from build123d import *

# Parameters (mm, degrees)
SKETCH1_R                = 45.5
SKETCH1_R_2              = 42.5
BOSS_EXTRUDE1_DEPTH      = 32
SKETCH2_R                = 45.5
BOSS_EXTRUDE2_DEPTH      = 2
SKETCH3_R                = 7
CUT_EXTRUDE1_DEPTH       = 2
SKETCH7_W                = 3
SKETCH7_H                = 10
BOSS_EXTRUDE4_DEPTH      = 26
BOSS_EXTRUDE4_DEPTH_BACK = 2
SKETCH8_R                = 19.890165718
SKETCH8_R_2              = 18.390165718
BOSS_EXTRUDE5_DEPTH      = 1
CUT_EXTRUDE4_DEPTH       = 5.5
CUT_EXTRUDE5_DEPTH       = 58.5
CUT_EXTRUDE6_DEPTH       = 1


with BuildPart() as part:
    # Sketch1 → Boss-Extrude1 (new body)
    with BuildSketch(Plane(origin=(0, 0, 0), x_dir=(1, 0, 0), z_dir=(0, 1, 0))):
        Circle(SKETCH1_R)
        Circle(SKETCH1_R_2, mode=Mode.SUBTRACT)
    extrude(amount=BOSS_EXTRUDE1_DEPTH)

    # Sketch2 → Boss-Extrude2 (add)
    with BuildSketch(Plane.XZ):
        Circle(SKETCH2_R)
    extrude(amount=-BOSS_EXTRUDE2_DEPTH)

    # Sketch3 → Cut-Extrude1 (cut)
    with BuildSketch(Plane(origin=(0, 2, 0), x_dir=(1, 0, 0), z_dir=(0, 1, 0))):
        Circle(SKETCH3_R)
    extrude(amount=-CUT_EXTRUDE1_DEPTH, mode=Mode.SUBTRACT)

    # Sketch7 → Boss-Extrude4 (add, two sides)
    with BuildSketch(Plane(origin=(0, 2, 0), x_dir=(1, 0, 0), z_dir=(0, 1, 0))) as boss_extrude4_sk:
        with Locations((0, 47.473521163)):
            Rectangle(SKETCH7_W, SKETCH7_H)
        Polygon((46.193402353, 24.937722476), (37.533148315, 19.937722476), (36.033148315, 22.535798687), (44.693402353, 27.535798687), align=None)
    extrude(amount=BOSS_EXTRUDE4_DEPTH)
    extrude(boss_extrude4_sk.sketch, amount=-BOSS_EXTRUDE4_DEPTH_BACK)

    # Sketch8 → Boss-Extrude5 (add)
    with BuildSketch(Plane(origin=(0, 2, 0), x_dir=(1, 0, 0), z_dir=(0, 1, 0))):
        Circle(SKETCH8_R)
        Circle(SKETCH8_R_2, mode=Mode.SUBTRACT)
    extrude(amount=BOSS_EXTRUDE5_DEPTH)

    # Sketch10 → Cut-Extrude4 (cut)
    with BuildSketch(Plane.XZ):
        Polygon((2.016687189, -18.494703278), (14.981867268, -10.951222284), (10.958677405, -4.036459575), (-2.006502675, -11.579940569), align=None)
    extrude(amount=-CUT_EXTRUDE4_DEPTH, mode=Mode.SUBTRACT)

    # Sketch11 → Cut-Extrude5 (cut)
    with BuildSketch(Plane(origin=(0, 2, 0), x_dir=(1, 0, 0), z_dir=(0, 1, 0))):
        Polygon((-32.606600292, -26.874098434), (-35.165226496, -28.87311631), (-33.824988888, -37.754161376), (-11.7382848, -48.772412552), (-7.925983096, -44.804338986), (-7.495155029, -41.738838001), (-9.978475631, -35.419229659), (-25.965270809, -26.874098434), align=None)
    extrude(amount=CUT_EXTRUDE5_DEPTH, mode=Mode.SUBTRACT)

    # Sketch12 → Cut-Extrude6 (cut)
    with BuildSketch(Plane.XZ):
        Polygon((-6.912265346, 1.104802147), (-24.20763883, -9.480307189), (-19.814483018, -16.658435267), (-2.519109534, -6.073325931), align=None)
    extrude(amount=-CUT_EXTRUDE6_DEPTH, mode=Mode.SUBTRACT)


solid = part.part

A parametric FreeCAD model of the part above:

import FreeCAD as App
import Part
import Sketcher
from FreeCAD import Vector
Q = App.Units.Quantity

doc = App.newDocument("Part")
body = doc.addObject("PartDesign::Body", "Body")

sketch1 = body.newObject("Sketcher::SketchObject", "Sketch")
sketch1.AttachmentSupport = (doc.getObject("XZ_Plane"), [""])
sketch1.MapMode = "FlatFace"
sketch1.addGeometry([
    Part.Circle(Vector(0, 0, 0), Vector(0, 0, 1), 46),
    Part.Circle(Vector(0, 0, 0), Vector(0, 0, 1), 42),
], False)
sketch1.addConstraint([
    Sketcher.Constraint("Coincident", 0, 3, -1, 1),
    Sketcher.Constraint("Coincident", 1, 3, -1, 1),
    Sketcher.Constraint("Diameter", 0, Q("91 mm")),
    Sketcher.Constraint("Diameter", 1, Q("85 mm")),
])
pad1 = body.newObject("PartDesign::Pad", "Pad")
pad1.Profile = sketch1
pad1.Length = 32
pad1.Reversed = True

sketch2 = body.newObject("Sketcher::SketchObject", "Sketch001")
sketch2.AttachmentSupport = (doc.getObject("XZ_Plane"), [""])
sketch2.MapMode = "FlatFace"
sketch2.addGeometry(Part.Circle(Vector(0, 0, 0), Vector(0, 0, 1), 46), False)
sketch2.addConstraint([
    Sketcher.Constraint("Coincident", 0, 3, -1, 1),
    Sketcher.Constraint("Diameter", 0, Q("91 mm")),
])
pad2 = body.newObject("PartDesign::Pad", "Pad001")
pad2.Profile = sketch2
pad2.Length = 2
pad2.Reversed = True

sketch3 = body.newObject("Sketcher::SketchObject", "Sketch002")
sketch3.AttachmentSupport = (doc.getObject("XZ_Plane"), [""])
sketch3.MapMode = "FlatFace"
sketch3.AttachmentOffset = App.Placement(Vector(0, 0, -2), App.Rotation())
sketch3.addGeometry(Part.Circle(Vector(0, 0, 0), Vector(0, 0, 1), 7), False)
sketch3.addConstraint([
    Sketcher.Constraint("Coincident", 0, 3, -1, 1),
    Sketcher.Constraint("Diameter", 0, Q("14 mm")),
])
pocket1 = body.newObject("PartDesign::Pocket", "Pocket")
pocket1.Profile = sketch3
pocket1.Length = 2
pocket1.Reversed = True

sketch4 = body.newObject("Sketcher::SketchObject", "Sketch003")
sketch4.AttachmentSupport = (doc.getObject("XZ_Plane"), [""])
sketch4.MapMode = "FlatFace"
sketch4.AttachmentOffset = App.Placement(Vector(0, 0, -2), App.Rotation())
sketch4.addGeometry([
    Part.LineSegment(Vector(-1.5, -52.5, 0), Vector(-1.5, -42.5, 0)),
    Part.LineSegment(Vector(-1.5, -42.5, 0), Vector(1.5, -42.5, 0)),
    Part.LineSegment(Vector(1.5, -42.5, 0), Vector(1.5, -52.5, 0)),
    Part.LineSegment(Vector(1.5, -52.5, 0), Vector(-1.5, -52.5, 0)),
    Part.LineSegment(Vector(37.5, -19.9, 0), Vector(46.2, -24.9, 0)),
    Part.LineSegment(Vector(46.2, -24.9, 0), Vector(44.7, -27.5, 0)),
    Part.LineSegment(Vector(44.7, -27.5, 0), Vector(36, -22.5, 0)),
    Part.LineSegment(Vector(36, -22.5, 0), Vector(37.5, -19.9, 0)),
], False)
sketch4.addConstraint([
    Sketcher.Constraint("Coincident", 0, 2, 1, 1),
    Sketcher.Constraint("Coincident", 1, 2, 2, 1),
    Sketcher.Constraint("Coincident", 2, 2, 3, 1),
    Sketcher.Constraint("Coincident", 3, 2, 0, 1),
    Sketcher.Constraint("Coincident", 4, 2, 5, 1),
    Sketcher.Constraint("Coincident", 5, 2, 6, 1),
    Sketcher.Constraint("Coincident", 6, 2, 7, 1),
    Sketcher.Constraint("Coincident", 7, 2, 4, 1),
    Sketcher.Constraint("Vertical", 0),
    Sketcher.Constraint("Horizontal", 1),
    Sketcher.Constraint("Vertical", 2),
    Sketcher.Constraint("Horizontal", 3),
    Sketcher.Constraint("Perpendicular", 4, 5),
    Sketcher.Constraint("Perpendicular", 5, 6),
    Sketcher.Constraint("Perpendicular", 6, 7),
    Sketcher.Constraint("DistanceX", 1, 1, 1, 2, Q("3 mm")),
    Sketcher.Constraint("DistanceY", 0, 1, 0, 2, Q("10 mm")),
    Sketcher.Constraint("Angle", 4, Q("-30 deg")),
    Sketcher.Constraint("Distance", 4, Q("10 mm")),
    Sketcher.Constraint("Distance", 5, Q("3 mm")),
    Sketcher.Constraint("DistanceX", 0, 2, -1, 1, Q("1.5 mm")),
    Sketcher.Constraint("DistanceY", 5, 2, -1, 1, Q("27.535799 mm")),
    Sketcher.Constraint("DistanceY", 1, 2, 4, 2, Q("17.535799 mm")),
    Sketcher.Constraint("DistanceX", -1, 1, 6, 2, Q("36.033148 mm")),
])
pad3 = body.newObject("PartDesign::Pad", "Pad002")
pad3.Profile = sketch4
pad3.Type = "TwoLengths"
pad3.Length = 26
pad3.Length2 = 2
pad3.Reversed = True

sketch5 = body.newObject("Sketcher::SketchObject", "Sketch004")
sketch5.AttachmentSupport = (doc.getObject("XZ_Plane"), [""])
sketch5.MapMode = "FlatFace"
sketch5.AttachmentOffset = App.Placement(Vector(0, 0, -2), App.Rotation())
sketch5.addGeometry([
    Part.Circle(Vector(0, 0, 0), Vector(0, 0, 1), 20),
    Part.Circle(Vector(0, 0, 0), Vector(0, 0, 1), 18),
], False)
sketch5.addConstraint([
    Sketcher.Constraint("Coincident", 0, 3, -1, 1),
    Sketcher.Constraint("Coincident", 1, 3, -1, 1),
    Sketcher.Constraint("Diameter", 0, Q("39.780331 mm")),
    Sketcher.Constraint("Diameter", 1, Q("36.780331 mm")),
])
pad4 = body.newObject("PartDesign::Pad", "Pad003")
pad4.Profile = sketch5
pad4.Length = 1
pad4.Reversed = True

sketch6 = body.newObject("Sketcher::SketchObject", "Sketch005")
sketch6.AttachmentSupport = (doc.getObject("XZ_Plane"), [""])
sketch6.MapMode = "FlatFace"
sketch6.addGeometry([
    Part.LineSegment(Vector(2, -18, 0), Vector(15, -11, 0)),
    Part.LineSegment(Vector(15, -11, 0), Vector(11, -4, 0)),
    Part.LineSegment(Vector(11, -4, 0), Vector(-2, -12, 0)),
    Part.LineSegment(Vector(-2, -12, 0), Vector(2, -18, 0)),
], False)
sketch6.addConstraint([
    Sketcher.Constraint("Coincident", 0, 2, 1, 1),
    Sketcher.Constraint("Coincident", 1, 2, 2, 1),
    Sketcher.Constraint("Coincident", 2, 2, 3, 1),
    Sketcher.Constraint("Coincident", 3, 2, 0, 1),
    Sketcher.Constraint("Perpendicular", 0, 1),
    Sketcher.Constraint("Perpendicular", 1, 2),
    Sketcher.Constraint("Perpendicular", 2, 3),
    Sketcher.Constraint("Distance", 0, Q("15 mm")),
    Sketcher.Constraint("Distance", 1, Q("8 mm")),
    Sketcher.Constraint("DistanceY", 1, 2, -1, 1, Q("4.03646 mm")),
    Sketcher.Constraint("DistanceY", 2, 2, -1, 1, Q("11.579941 mm")),
    Sketcher.Constraint("DistanceX", -1, 1, 0, 2, Q("14.981867 mm")),
])
pocket2 = body.newObject("PartDesign::Pocket", "Pocket001")
pocket2.Profile = sketch6
pocket2.Length = 5.5

sketch7 = body.newObject("Sketcher::SketchObject", "Sketch006")
sketch7.AttachmentSupport = (doc.getObject("XZ_Plane"), [""])
sketch7.MapMode = "FlatFace"
sketch7.AttachmentOffset = App.Placement(Vector(0, 0, -2), App.Rotation())
sketch7.addGeometry([
    Part.LineSegment(Vector(-32.6, 26.9, 0), Vector(-35.2, 28.9, 0)),
    Part.LineSegment(Vector(-35.2, 28.9, 0), Vector(-33.8, 37.8, 0)),
    Part.LineSegment(Vector(-33.8, 37.8, 0), Vector(-11.7, 48.8, 0)),
    Part.LineSegment(Vector(-11.7, 48.8, 0), Vector(-7.9, 44.8, 0)),
    Part.LineSegment(Vector(-7.9, 44.8, 0), Vector(-7.5, 41.7, 0)),
    Part.LineSegment(Vector(-7.5, 41.7, 0), Vector(-10, 35.4, 0)),
    Part.LineSegment(Vector(-10, 35.4, 0), Vector(-26, 26.9, 0)),
    Part.LineSegment(Vector(-26, 26.9, 0), Vector(-32.6, 26.9, 0)),
], False)
sketch7.addConstraint([
    Sketcher.Constraint("Coincident", 0, 2, 1, 1),
    Sketcher.Constraint("Coincident", 1, 2, 2, 1),
    Sketcher.Constraint("Coincident", 2, 2, 3, 1),
    Sketcher.Constraint("Coincident", 3, 2, 4, 1),
    Sketcher.Constraint("Coincident", 4, 2, 5, 1),
    Sketcher.Constraint("Coincident", 5, 2, 6, 1),
    Sketcher.Constraint("Coincident", 6, 2, 7, 1),
    Sketcher.Constraint("Coincident", 7, 2, 0, 1),
    Sketcher.Constraint("Horizontal", 7),
    Sketcher.Constraint("Angle", 0, Q("142 deg")),
    Sketcher.Constraint("Angle", 4, Q("-82 deg")),
    Sketcher.Constraint("DistanceX", 7, 2, 7, 1, Q("6.641329 mm")),
    Sketcher.Constraint("DistanceY", -1, 1, 6, 2, Q("26.874098 mm")),
    Sketcher.Constraint("DistanceX", 7, 2, -1, 1, Q("32.6066 mm")),
    Sketcher.Constraint("DistanceX", 2, 2, 3, 2, Q("3.812302 mm")),
    Sketcher.Constraint("DistanceY", 4, 2, 3, 2, Q("3.065501 mm")),
    Sketcher.Constraint("Distance", 2, Q("24.682471 mm")),
    Sketcher.Constraint("Distance", 3, Q("5.502659 mm")),
    Sketcher.Constraint("Distance", 6, Q("18.127242 mm")),
    Sketcher.Constraint("DistanceX", 1, 2, -1, 1, Q("33.824989 mm")),
    Sketcher.Constraint("DistanceY", -1, 1, 1, 2, Q("37.754161 mm")),
    Sketcher.Constraint("DistanceY", -1, 1, 3, 2, Q("44.804339 mm")),
    Sketcher.Constraint("DistanceY", -1, 1, 5, 2, Q("35.41923 mm")),
    Sketcher.Constraint("DistanceX", 0, 2, 2, 2, Q("23.426942 mm")),
])
pocket3 = body.newObject("PartDesign::Pocket", "Pocket002")
pocket3.Profile = sketch7
pocket3.Length = 58.5

sketch8 = body.newObject("Sketcher::SketchObject", "Sketch007")
sketch8.AttachmentSupport = (doc.getObject("XZ_Plane"), [""])
sketch8.MapMode = "FlatFace"
sketch8.addGeometry([
    Part.LineSegment(Vector(-7, 1, 0), Vector(-24, -9, 0)),
    Part.LineSegment(Vector(-24, -9, 0), Vector(-20, -17, 0)),
    Part.LineSegment(Vector(-20, -17, 0), Vector(-3, -6, 0)),
    Part.LineSegment(Vector(-3, -6, 0), Vector(-7, 1, 0)),
], False)
sketch8.addConstraint([
    Sketcher.Constraint("Coincident", 0, 2, 1, 1),
    Sketcher.Constraint("Coincident", 1, 2, 2, 1),
    Sketcher.Constraint("Coincident", 2, 2, 3, 1),
    Sketcher.Constraint("Coincident", 3, 2, 0, 1),
    Sketcher.Constraint("Perpendicular", 0, 1),
    Sketcher.Constraint("Perpendicular", 1, 2),
    Sketcher.Constraint("Perpendicular", 2, 3),
    Sketcher.Constraint("Distance", 1, Q("8.415779 mm")),
    Sketcher.Constraint("DistanceX", 0, 2, -1, 1, Q("24.207639 mm")),
    Sketcher.Constraint("DistanceX", 2, 2, -1, 1, Q("2.51911 mm")),
    Sketcher.Constraint("DistanceY", 1, 2, 0, 2, Q("7.178128 mm")),
    Sketcher.Constraint("DistanceY", 0, 2, -1, 1, Q("9.480307 mm")),
])
pocket4 = body.newObject("PartDesign::Pocket", "Pocket003")
pocket4.Profile = sketch8
pocket4.Length = 1

doc.recompute()
